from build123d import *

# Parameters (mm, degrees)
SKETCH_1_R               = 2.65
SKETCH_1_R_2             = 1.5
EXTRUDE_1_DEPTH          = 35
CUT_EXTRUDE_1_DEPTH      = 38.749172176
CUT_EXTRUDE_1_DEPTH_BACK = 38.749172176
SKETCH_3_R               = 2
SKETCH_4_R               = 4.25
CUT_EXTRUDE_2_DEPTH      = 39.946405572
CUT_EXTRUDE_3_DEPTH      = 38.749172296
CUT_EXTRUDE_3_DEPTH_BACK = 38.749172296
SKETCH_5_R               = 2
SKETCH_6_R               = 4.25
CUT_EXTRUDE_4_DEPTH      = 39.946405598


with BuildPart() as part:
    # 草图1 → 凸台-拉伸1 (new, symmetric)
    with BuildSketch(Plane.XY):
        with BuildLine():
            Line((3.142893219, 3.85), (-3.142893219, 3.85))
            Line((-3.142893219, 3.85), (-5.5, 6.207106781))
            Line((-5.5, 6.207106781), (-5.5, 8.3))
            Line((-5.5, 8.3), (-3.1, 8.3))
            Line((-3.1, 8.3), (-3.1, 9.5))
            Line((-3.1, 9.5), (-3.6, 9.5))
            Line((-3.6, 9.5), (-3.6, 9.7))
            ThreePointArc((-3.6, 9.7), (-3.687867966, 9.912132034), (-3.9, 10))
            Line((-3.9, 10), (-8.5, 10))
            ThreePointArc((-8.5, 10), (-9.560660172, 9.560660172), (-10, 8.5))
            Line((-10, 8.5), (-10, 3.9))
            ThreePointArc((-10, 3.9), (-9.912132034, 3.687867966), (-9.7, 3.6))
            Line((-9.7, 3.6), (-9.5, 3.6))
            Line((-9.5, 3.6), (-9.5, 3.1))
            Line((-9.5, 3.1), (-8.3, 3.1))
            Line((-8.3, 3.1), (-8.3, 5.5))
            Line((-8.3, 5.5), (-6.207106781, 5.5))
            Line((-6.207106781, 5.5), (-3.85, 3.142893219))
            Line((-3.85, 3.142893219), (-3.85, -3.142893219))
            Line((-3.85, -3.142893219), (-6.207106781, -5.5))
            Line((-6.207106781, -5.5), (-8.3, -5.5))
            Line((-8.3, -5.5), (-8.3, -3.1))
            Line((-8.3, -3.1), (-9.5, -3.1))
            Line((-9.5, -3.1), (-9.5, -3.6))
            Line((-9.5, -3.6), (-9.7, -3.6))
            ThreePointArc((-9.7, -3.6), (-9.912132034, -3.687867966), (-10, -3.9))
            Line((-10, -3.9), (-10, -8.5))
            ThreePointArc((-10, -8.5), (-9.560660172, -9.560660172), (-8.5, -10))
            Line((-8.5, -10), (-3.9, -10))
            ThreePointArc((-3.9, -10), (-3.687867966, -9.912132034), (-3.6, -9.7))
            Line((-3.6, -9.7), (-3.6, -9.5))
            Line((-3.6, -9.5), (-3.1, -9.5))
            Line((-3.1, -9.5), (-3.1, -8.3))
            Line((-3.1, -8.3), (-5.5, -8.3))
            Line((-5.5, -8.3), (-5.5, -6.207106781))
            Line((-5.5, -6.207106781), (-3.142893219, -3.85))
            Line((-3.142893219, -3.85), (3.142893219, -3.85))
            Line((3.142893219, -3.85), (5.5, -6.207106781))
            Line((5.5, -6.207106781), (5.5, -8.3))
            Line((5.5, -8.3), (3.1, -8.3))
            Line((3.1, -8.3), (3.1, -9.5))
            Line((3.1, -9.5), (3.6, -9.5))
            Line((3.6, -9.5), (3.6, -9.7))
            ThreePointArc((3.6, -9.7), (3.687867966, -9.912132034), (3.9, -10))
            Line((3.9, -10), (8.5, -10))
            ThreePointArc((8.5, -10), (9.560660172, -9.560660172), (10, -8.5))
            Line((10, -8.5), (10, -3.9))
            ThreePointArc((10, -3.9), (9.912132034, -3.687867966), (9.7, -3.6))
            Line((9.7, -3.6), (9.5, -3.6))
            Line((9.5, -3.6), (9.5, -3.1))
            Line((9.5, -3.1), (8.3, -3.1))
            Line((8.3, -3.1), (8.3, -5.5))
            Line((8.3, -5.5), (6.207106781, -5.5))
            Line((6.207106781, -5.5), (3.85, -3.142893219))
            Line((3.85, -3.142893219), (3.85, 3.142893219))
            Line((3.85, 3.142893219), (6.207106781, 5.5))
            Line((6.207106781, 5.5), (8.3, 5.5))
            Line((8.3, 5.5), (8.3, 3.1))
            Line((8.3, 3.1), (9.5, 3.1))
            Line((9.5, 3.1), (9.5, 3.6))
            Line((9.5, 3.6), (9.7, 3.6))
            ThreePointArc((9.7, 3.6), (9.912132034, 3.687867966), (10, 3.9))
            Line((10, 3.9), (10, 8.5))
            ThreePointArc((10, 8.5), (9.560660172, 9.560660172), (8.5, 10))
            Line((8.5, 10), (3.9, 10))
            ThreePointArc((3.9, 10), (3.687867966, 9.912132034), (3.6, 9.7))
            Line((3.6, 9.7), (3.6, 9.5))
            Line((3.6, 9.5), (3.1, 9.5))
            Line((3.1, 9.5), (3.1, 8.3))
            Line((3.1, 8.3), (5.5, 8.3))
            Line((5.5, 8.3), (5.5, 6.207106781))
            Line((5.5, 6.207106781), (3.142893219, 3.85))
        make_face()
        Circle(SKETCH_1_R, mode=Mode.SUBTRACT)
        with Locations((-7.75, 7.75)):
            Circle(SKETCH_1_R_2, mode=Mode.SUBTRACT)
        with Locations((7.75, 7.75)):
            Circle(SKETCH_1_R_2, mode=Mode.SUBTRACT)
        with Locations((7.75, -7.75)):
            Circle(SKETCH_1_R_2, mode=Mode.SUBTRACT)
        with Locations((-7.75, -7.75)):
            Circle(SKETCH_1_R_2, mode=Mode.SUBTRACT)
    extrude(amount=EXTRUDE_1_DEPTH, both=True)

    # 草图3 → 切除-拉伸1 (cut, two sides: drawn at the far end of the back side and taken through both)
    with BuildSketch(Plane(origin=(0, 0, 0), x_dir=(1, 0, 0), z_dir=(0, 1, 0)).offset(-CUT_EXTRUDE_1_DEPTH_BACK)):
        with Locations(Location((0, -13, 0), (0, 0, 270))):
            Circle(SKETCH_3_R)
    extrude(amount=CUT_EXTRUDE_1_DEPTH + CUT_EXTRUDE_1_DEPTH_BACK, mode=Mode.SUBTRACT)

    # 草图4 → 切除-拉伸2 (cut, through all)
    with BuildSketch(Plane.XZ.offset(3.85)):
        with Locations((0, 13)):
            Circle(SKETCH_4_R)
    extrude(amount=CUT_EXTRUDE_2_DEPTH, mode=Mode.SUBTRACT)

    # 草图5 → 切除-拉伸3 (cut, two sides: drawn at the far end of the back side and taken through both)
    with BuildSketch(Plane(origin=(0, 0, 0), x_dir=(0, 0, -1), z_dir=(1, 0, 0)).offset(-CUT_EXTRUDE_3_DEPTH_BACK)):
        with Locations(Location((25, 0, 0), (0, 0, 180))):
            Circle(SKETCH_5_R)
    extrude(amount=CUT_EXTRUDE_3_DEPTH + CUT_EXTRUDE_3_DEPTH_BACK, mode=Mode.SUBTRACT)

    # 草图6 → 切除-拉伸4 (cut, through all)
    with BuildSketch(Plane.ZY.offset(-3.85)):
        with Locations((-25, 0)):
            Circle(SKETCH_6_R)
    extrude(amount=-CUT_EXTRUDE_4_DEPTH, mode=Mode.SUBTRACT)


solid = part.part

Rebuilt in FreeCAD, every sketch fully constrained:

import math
import FreeCAD as App
import Part
import Sketcher
from FreeCAD import Vector
Q = App.Units.Quantity

doc = App.newDocument("Part")
body = doc.addObject("PartDesign::Body", "Body")

sketch1 = doc.addObject("Sketcher::SketchObject", "Sketch")
body.addObject(sketch1)
sketch1.AttachmentSupport = (doc.XY_Plane, [""])
sketch1.MapMode = "FlatFace"
sketch1.addGeometry(Part.LineSegment(Vector(3.14, 3.85, 0), Vector(-3.14, 3.85, 0)), False)
sketch1.addGeometry(Part.LineSegment(Vector(-3.14, 3.85, 0), Vector(-5.5, 6.21, 0)), False)
sketch1.addGeometry(Part.LineSegment(Vector(-5.5, 6.21, 0), Vector(-5.5, 8.3, 0)), False)
sketch1.addGeometry(Part.LineSegment(Vector(-5.5, 8.3, 0), Vector(-3.1, 8.3, 0)), False)
sketch1.addGeometry(Part.LineSegment(Vector(-3.1, 8.3, 0), Vector(-3.1, 9.5, 0)), False)
sketch1.addGeometry(Part.LineSegment(Vector(-3.1, 9.5, 0), Vector(-3.6, 9.5, 0)), False)
sketch1.addGeometry(Part.LineSegment(Vector(-3.6, 9.5, 0), Vector(-3.6, 9.7, 0)), False)
sketch1.addGeometry(Part.ArcOfCircle(Part.Circle(Vector(-3.9, 9.7, 0), Vector(0, 0, 1), 0.3), math.radians(0), math.radians(90)), False)
sketch1.addGeometry(Part.LineSegment(Vector(-3.9, 10, 0), Vector(-8.5, 10, 0)), False)
sketch1.addGeometry(Part.ArcOfCircle(Part.Circle(Vector(-8.5, 8.5, 0), Vector(0, 0, 1), 1.5), math.radians(90), math.radians(180)), False)
sketch1.addGeometry(Part.LineSegment(Vector(-10, 8.5, 0), Vector(-10, 3.9, 0)), False)
sketch1.addGeometry(Part.ArcOfCircle(Part.Circle(Vector(-9.7, 3.9, 0), Vector(0, 0, 1), 0.3), math.radians(-180), math.radians(-90)), False)
sketch1.addGeometry(Part.LineSegment(Vector(-9.7, 3.6, 0), Vector(-9.5, 3.6, 0)), False)
sketch1.addGeometry(Part.LineSegment(Vector(-9.5, 3.6, 0), Vector(-9.5, 3.1, 0)), False)
sketch1.addGeometry(Part.LineSegment(Vector(-9.5, 3.1, 0), Vector(-8.3, 3.1, 0)), False)
sketch1.addGeometry(Part.LineSegment(Vector(-8.3, 3.1, 0), Vector(-8.3, 5.5, 0)), False)
sketch1.addGeometry(Part.LineSegment(Vector(-8.3, 5.5, 0), Vector(-6.21, 5.5, 0)), False)
sketch1.addGeometry(Part.LineSegment(Vector(-6.21, 5.5, 0), Vector(-3.85, 3.14, 0)), False)
sketch1.addGeometry(Part.LineSegment(Vector(-3.85, 3.14, 0), Vector(-3.85, -3.14, 0)), False)
sketch1.addGeometry(Part.LineSegment(Vector(-3.85, -3.14, 0), Vector(-6.21, -5.5, 0)), False)
sketch1.addGeometry(Part.LineSegment(Vector(-6.21, -5.5, 0), Vector(-8.3, -5.5, 0)), False)
sketch1.addGeometry(Part.LineSegment(Vector(-8.3, -5.5, 0), Vector(-8.3, -3.1, 0)), False)
sketch1.addGeometry(Part.LineSegment(Vector(-8.3, -3.1, 0), Vector(-9.5, -3.1, 0)), False)
sketch1.addGeometry(Part.LineSegment(Vector(-9.5, -3.1, 0), Vector(-9.5, -3.6, 0)), False)
sketch1.addGeometry(Part.LineSegment(Vector(-9.5, -3.6, 0), Vector(-9.7, -3.6, 0)), False)
sketch1.addGeometry(Part.ArcOfCircle(Part.Circle(Vector(-9.7, -3.9, 0), Vector(0, 0, 1), 0.3), math.radians(90), math.radians(180)), False)
sketch1.addGeometry(Part.LineSegment(Vector(-10, -3.9, 0), Vector(-10, -8.5, 0)), False)
sketch1.addGeometry(Part.ArcOfCircle(Part.Circle(Vector(-8.5, -8.5, 0), Vector(0, 0, 1), 1.5), math.radians(180), math.radians(270)), False)
sketch1.addGeometry(Part.LineSegment(Vector(-8.5, -10, 0), Vector(-3.9, -10, 0)), False)
sketch1.addGeometry(Part.ArcOfCircle(Part.Circle(Vector(-3.9, -9.7, 0), Vector(0, 0, 1), 0.3), math.radians(-90), math.radians(0)), False)
sketch1.addGeometry(Part.LineSegment(Vector(-3.6, -9.7, 0), Vector(-3.6, -9.5, 0)), False)
sketch1.addGeometry(Part.LineSegment(Vector(-3.6, -9.5, 0), Vector(-3.1, -9.5, 0)), False)
sketch1.addGeometry(Part.LineSegment(Vector(-3.1, -9.5, 0), Vector(-3.1, -8.3, 0)), False)
sketch1.addGeometry(Part.LineSegment(Vector(-3.1, -8.3, 0), Vector(-5.5, -8.3, 0)), False)
sketch1.addGeometry(Part.LineSegment(Vector(-5.5, -8.3, 0), Vector(-5.5, -6.21, 0)), False)
sketch1.addGeometry(Part.LineSegment(Vector(-5.5, -6.21, 0), Vector(-3.14, -3.85, 0)), False)
sketch1.addGeometry(Part.LineSegment(Vector(-3.14, -3.85, 0), Vector(3.14, -3.85, 0)), False)
sketch1.addGeometry(Part.LineSegment(Vector(3.14, -3.85, 0), Vector(5.5, -6.21, 0)), False)
sketch1.addGeometry(Part.LineSegment(Vector(5.5, -6.21, 0), Vector(5.5, -8.3, 0)), False)
sketch1.addGeometry(Part.LineSegment(Vector(5.5, -8.3, 0), Vector(3.1, -8.3, 0)), False)
sketch1.addGeometry(Part.LineSegment(Vector(3.1, -8.3, 0), Vector(3.1, -9.5, 0)), False)
sketch1.addGeometry(Part.LineSegment(Vector(3.1, -9.5, 0), Vector(3.6, -9.5, 0)), False)
sketch1.addGeometry(Part.LineSegment(Vector(3.6, -9.5, 0), Vector(3.6, -9.7, 0)), False)
sketch1.addGeometry(Part.ArcOfCircle(Part.Circle(Vector(3.9, -9.7, 0), Vector(0, 0, 1), 0.3), math.radians(-180), math.radians(-90)), False)
sketch1.addGeometry(Part.LineSegment(Vector(3.9, -10, 0), Vector(8.5, -10, 0)), False)
sketch1.addGeometry(Part.ArcOfCircle(Part.Circle(Vector(8.5, -8.5, 0), Vector(0, 0, 1), 1.5), math.radians(-90), math.radians(0)), False)
sketch1.addGeometry(Part.LineSegment(Vector(10, -8.5, 0), Vector(10, -3.9, 0)), False)
sketch1.addGeometry(Part.ArcOfCircle(Part.Circle(Vector(9.7, -3.9, 0), Vector(0, 0, 1), 0.3), math.radians(0), math.radians(90)), False)
sketch1.addGeometry(Part.LineSegment(Vector(9.7, -3.6, 0), Vector(9.5, -3.6, 0)), False)
sketch1.addGeometry(Part.LineSegment(Vector(9.5, -3.6, 0), Vector(9.5, -3.1, 0)), False)
sketch1.addGeometry(Part.LineSegment(Vector(9.5, -3.1, 0), Vector(8.3, -3.1, 0)), False)
sketch1.addGeometry(Part.LineSegment(Vector(8.3, -3.1, 0), Vector(8.3, -5.5, 0)), False)
sketch1.addGeometry(Part.LineSegment(Vector(8.3, -5.5, 0), Vector(6.21, -5.5, 0)), False)
sketch1.addGeometry(Part.LineSegment(Vector(6.21, -5.5, 0), Vector(3.85, -3.14, 0)), False)
sketch1.addGeometry(Part.LineSegment(Vector(3.85, -3.14, 0), Vector(3.85, 3.14, 0)), False)
sketch1.addGeometry(Part.LineSegment(Vector(3.85, 3.14, 0), Vector(6.21, 5.5, 0)), False)
sketch1.addGeometry(Part.LineSegment(Vector(6.21, 5.5, 0), Vector(8.3, 5.5, 0)), False)
sketch1.addGeometry(Part.LineSegment(Vector(8.3, 5.5, 0), Vector(8.3, 3.1, 0)), False)
sketch1.addGeometry(Part.LineSegment(Vector(8.3, 3.1, 0), Vector(9.5, 3.1, 0)), False)
sketch1.addGeometry(Part.LineSegment(Vector(9.5, 3.1, 0), Vector(9.5, 3.6, 0)), False)
sketch1.addGeometry(Part.LineSegment(Vector(9.5, 3.6, 0), Vector(9.7, 3.6, 0)), False)
sketch1.addGeometry(Part.ArcOfCircle(Part.Circle(Vector(9.7, 3.9, 0), Vector(0, 0, 1), 0.3), math.radians(-90), math.radians(0)), False)
sketch1.addGeometry(Part.LineSegment(Vector(10, 3.9, 0), Vector(10, 8.5, 0)), False)
sketch1.addGeometry(Part.ArcOfCircle(Part.Circle(Vector(8.5, 8.5, 0), Vector(0, 0, 1), 1.5), math.radians(0), math.radians(90)), False)
sketch1.addGeometry(Part.LineSegment(Vector(8.5, 10, 0), Vector(3.9, 10, 0)), False)
sketch1.addGeometry(Part.ArcOfCircle(Part.Circle(Vector(3.9, 9.7, 0), Vector(0, 0, 1), 0.3), math.radians(90), math.radians(180)), False)
sketch1.addGeometry(Part.LineSegment(Vector(3.6, 9.7, 0), Vector(3.6, 9.5, 0)), False)
sketch1.addGeometry(Part.LineSegment(Vector(3.6, 9.5, 0), Vector(3.1, 9.5, 0)), False)
sketch1.addGeometry(Part.LineSegment(Vector(3.1, 9.5, 0), Vector(3.1, 8.3, 0)), False)
sketch1.addGeometry(Part.LineSegment(Vector(3.1, 8.3, 0), Vector(5.5, 8.3, 0)), False)
sketch1.addGeometry(Part.LineSegment(Vector(5.5, 8.3, 0), Vector(5.5, 6.21, 0)), False)
sketch1.addGeometry(Part.LineSegment(Vector(5.5, 6.21, 0), Vector(3.14, 3.85, 0)), False)
sketch1.addGeometry(Part.Circle(Vector(-7.75, -7.75, 0), Vector(0, 0, 1), 1.5), False)
sketch1.addGeometry(Part.Circle(Vector(7.75, -7.75, 0), Vector(0, 0, 1), 1.5), False)
sketch1.addGeometry(Part.Circle(Vector(-7.75, 7.75, 0), Vector(0, 0, 1), 1.5), False)
sketch1.addGeometry(Part.Circle(Vector(0, 0, 0), Vector(0, 0, 1), 2.65), False)
sketch1.addGeometry(Part.Circle(Vector(7.75, 7.75, 0), Vector(0, 0, 1), 1.5), False)
sketch1.addConstraint(Sketcher.Constraint("Coincident", 0, 2, 1, 1))
sketch1.addConstraint(Sketcher.Constraint("Coincident", 1, 2, 2, 1))
sketch1.addConstraint(Sketcher.Constraint("Coincident", 2, 2, 3, 1))
sketch1.addConstraint(Sketcher.Constraint("Coincident", 3, 2, 4, 1))
sketch1.addConstraint(Sketcher.Constraint("Coincident", 4, 2, 5, 1))
sketch1.addConstraint(Sketcher.Constraint("Coincident", 5, 2, 6, 1))
sketch1.addConstraint(Sketcher.Constraint("Tangent", 6, 2, 7, 1))
sketch1.addConstraint(Sketcher.Constraint("Tangent", 7, 2, 8, 1))
sketch1.addConstraint(Sketcher.Constraint("Tangent", 8, 2, 9, 1))
sketch1.addConstraint(Sketcher.Constraint("Tangent", 9, 2, 10, 1))
sketch1.addConstraint(Sketcher.Constraint("Tangent", 10, 2, 11, 1))
sketch1.addConstraint(Sketcher.Constraint("Tangent", 11, 2, 12, 1))
sketch1.addConstraint(Sketcher.Constraint("Coincident", 12, 2, 13, 1))
sketch1.addConstraint(Sketcher.Constraint("Coincident", 13, 2, 14, 1))
sketch1.addConstraint(Sketcher.Constraint("Coincident", 14, 2, 15, 1))
sketch1.addConstraint(Sketcher.Constraint("Coincident", 15, 2, 16, 1))
sketch1.addConstraint(Sketcher.Constraint("Coincident", 16, 2, 17, 1))
sketch1.addConstraint(Sketcher.Constraint("Coincident", 17, 2, 18, 1))
sketch1.addConstraint(Sketcher.Constraint("Coincident", 18, 2, 19, 1))
sketch1.addConstraint(Sketcher.Constraint("Coincident", 19, 2, 20, 1))
sketch1.addConstraint(Sketcher.Constraint("Coincident", 20, 2, 21, 1))
sketch1.addConstraint(Sketcher.Constraint("Coincident", 21, 2, 22, 1))
sketch1.addConstraint(Sketcher.Constraint("Coincident", 22, 2, 23, 1))
sketch1.addConstraint(Sketcher.Constraint("Coincident", 23, 2, 24, 1))
sketch1.addConstraint(Sketcher.Constraint("Tangent", 24, 2, 25, 1))
sketch1.addConstraint(Sketcher.Constraint("Tangent", 25, 2, 26, 1))
sketch1.addConstraint(Sketcher.Constraint("Tangent", 26, 2, 27, 1))
sketch1.addConstraint(Sketcher.Constraint("Tangent", 27, 2, 28, 1))
sketch1.addConstraint(Sketcher.Constraint("Tangent", 28, 2, 29, 1))
sketch1.addConstraint(Sketcher.Constraint("Tangent", 29, 2, 30, 1))
sketch1.addConstraint(Sketcher.Constraint("Coincident", 30, 2, 31, 1))
sketch1.addConstraint(Sketcher.Constraint("Coincident", 31, 2, 32, 1))
sketch1.addConstraint(Sketcher.Constraint("Coincident", 32, 2, 33, 1))
sketch1.addConstraint(Sketcher.Constraint("Coincident", 33, 2, 34, 1))
sketch1.addConstraint(Sketcher.Constraint("Coincident", 34, 2, 35, 1))
sketch1.addConstraint(Sketcher.Constraint("Coincident", 35, 2, 36, 1))
sketch1.addConstraint(Sketcher.Constraint("Coincident", 36, 2, 37, 1))
sketch1.addConstraint(Sketcher.Constraint("Coincident", 37, 2, 38, 1))
sketch1.addConstraint(Sketcher.Constraint("Coincident", 38, 2, 39, 1))
sketch1.addConstraint(Sketcher.Constraint("Coincident", 39, 2, 40, 1))
sketch1.addConstraint(Sketcher.Constraint("Coincident", 40, 2, 41, 1))
sketch1.addConstraint(Sketcher.Constraint("Coincident", 41, 2, 42, 1))
sketch1.addConstraint(Sketcher.Constraint("Tangent", 42, 2, 43, 1))
sketch1.addConstraint(Sketcher.Constraint("Tangent", 43, 2, 44, 1))
sketch1.addConstraint(Sketcher.Constraint("Tangent", 44, 2, 45, 1))
sketch1.addConstraint(Sketcher.Constraint("Tangent", 45, 2, 46, 1))
sketch1.addConstraint(Sketcher.Constraint("Tangent", 46, 2, 47, 1))
sketch1.addConstraint(Sketcher.Constraint("Tangent", 47, 2, 48, 1))
sketch1.addConstraint(Sketcher.Constraint("Coincident", 48, 2, 49, 1))
sketch1.addConstraint(Sketcher.Constraint("Coincident", 49, 2, 50, 1))
sketch1.addConstraint(Sketcher.Constraint("Coincident", 50, 2, 51, 1))
sketch1.addConstraint(Sketcher.Constraint("Coincident", 51, 2, 52, 1))
sketch1.addConstraint(Sketcher.Constraint("Coincident", 52, 2, 53, 1))
sketch1.addConstraint(Sketcher.Constraint("Coincident", 53, 2, 54, 1))
sketch1.addConstraint(Sketcher.Constraint("Coincident", 54, 2, 55, 1))
sketch1.addConstraint(Sketcher.Constraint("Coincident", 55, 2, 56, 1))
sketch1.addConstraint(Sketcher.Constraint("Coincident", 56, 2, 57, 1))
sketch1.addConstraint(Sketcher.Constraint("Coincident", 57, 2, 58, 1))
sketch1.addConstraint(Sketcher.Constraint("Coincident", 58, 2, 59, 1))
sketch1.addConstraint(Sketcher.Constraint("Coincident", 59, 2, 60, 1))
sketch1.addConstraint(Sketcher.Constraint("Tangent", 60, 2, 61, 1))
sketch1.addConstraint(Sketcher.Constraint("Tangent", 61, 2, 62, 1))
sketch1.addConstraint(Sketcher.Constraint("Tangent", 62, 2, 63, 1))
sketch1.addConstraint(Sketcher.Constraint("Tangent", 63, 2, 64, 1))
sketch1.addConstraint(Sketcher.Constraint("Tangent", 64, 2, 65, 1))
sketch1.addConstraint(Sketcher.Constraint("Tangent", 65, 2, 66, 1))
sketch1.addConstraint(Sketcher.Constraint("Coincident", 66, 2, 67, 1))
sketch1.addConstraint(Sketcher.Constraint("Coincident", 67, 2, 68, 1))
sketch1.addConstraint(Sketcher.Constraint("Coincident", 68, 2, 69, 1))
sketch1.addConstraint(Sketcher.Constraint("Coincident", 69, 2, 70, 1))
sketch1.addConstraint(Sketcher.Constraint("Coincident", 70, 2, 71, 1))
sketch1.addConstraint(Sketcher.Constraint("Coincident", 71, 2, 0, 1))
sketch1.addConstraint(Sketcher.Constraint("Horizontal", 0))
sketch1.addConstraint(Sketcher.Constraint("Vertical", 2))
sketch1.addConstraint(Sketcher.Constraint("Horizontal", 3))
sketch1.addConstraint(Sketcher.Constraint("Vertical", 4))
sketch1.addConstraint(Sketcher.Constraint("Horizontal", 5))
sketch1.addConstraint(Sketcher.Constraint("Vertical", 6))
sketch1.addConstraint(Sketcher.Constraint("Horizontal", 8))
sketch1.addConstraint(Sketcher.Constraint("Vertical", 10))
sketch1.addConstraint(Sketcher.Constraint("Horizontal", 12))
sketch1.addConstraint(Sketcher.Constraint("Vertical", 13))
sketch1.addConstraint(Sketcher.Constraint("Horizontal", 14))
sketch1.addConstraint(Sketcher.Constraint("Vertical", 15))
sketch1.addConstraint(Sketcher.Constraint("Horizontal", 16))
sketch1.addConstraint(Sketcher.Constraint("Vertical", 18))
sketch1.addConstraint(Sketcher.Constraint("Horizontal", 20))
sketch1.addConstraint(Sketcher.Constraint("Vertical", 21))
sketch1.addConstraint(Sketcher.Constraint("Horizontal", 22))
sketch1.addConstraint(Sketcher.Constraint("Vertical", 23))
sketch1.addConstraint(Sketcher.Constraint("Horizontal", 24))
sketch1.addConstraint(Sketcher.Constraint("Vertical", 26))
sketch1.addConstraint(Sketcher.Constraint("Horizontal", 28))
sketch1.addConstraint(Sketcher.Constraint("Vertical", 30))
sketch1.addConstraint(Sketcher.Constraint("Horizontal", 31))
sketch1.addConstraint(Sketcher.Constraint("Vertical", 32))
sketch1.addConstraint(Sketcher.Constraint("Horizontal", 33))
sketch1.addConstraint(Sketcher.Constraint("Vertical", 34))
sketch1.addConstraint(Sketcher.Constraint("Horizontal", 36))
sketch1.addConstraint(Sketcher.Constraint("Vertical", 38))
sketch1.addConstraint(Sketcher.Constraint("Horizontal", 39))
sketch1.addConstraint(Sketcher.Constraint("Vertical", 40))
sketch1.addConstraint(Sketcher.Constraint("Horizontal", 41))
sketch1.addConstraint(Sketcher.Constraint("Vertical", 42))
sketch1.addConstraint(Sketcher.Constraint("Horizontal", 44))
sketch1.addConstraint(Sketcher.Constraint("Vertical", 46))
sketch1.addConstraint(Sketcher.Constraint("Horizontal", 48))
sketch1.addConstraint(Sketcher.Constraint("Vertical", 49))
sketch1.addConstraint(Sketcher.Constraint("Horizontal", 50))
sketch1.addConstraint(Sketcher.Constraint("Vertical", 51))
sketch1.addConstraint(Sketcher.Constraint("Horizontal", 52))
sketch1.addConstraint(Sketcher.Constraint("Vertical", 54))
sketch1.addConstraint(Sketcher.Constraint("Horizontal", 56))
sketch1.addConstraint(Sketcher.Constraint("Vertical", 57))
sketch1.addConstraint(Sketcher.Constraint("Horizontal", 58))
sketch1.addConstraint(Sketcher.Constraint("Vertical", 59))
sketch1.addConstraint(Sketcher.Constraint("Horizontal", 60))
sketch1.addConstraint(Sketcher.Constraint("Vertical", 62))
sketch1.addConstraint(Sketcher.Constraint("Horizontal", 64))
sketch1.addConstraint(Sketcher.Constraint("Vertical", 66))
sketch1.addConstraint(Sketcher.Constraint("Horizontal", 67))
sketch1.addConstraint(Sketcher.Constraint("Vertical", 68))
sketch1.addConstraint(Sketcher.Constraint("Horizontal", 69))
sketch1.addConstraint(Sketcher.Constraint("Vertical", 70))
sketch1.addConstraint(Sketcher.Constraint("Coincident", 75, 3, -1, 1))
sketch1.addConstraint(Sketcher.Constraint("Equal", 7, 11))
sketch1.addConstraint(Sketcher.Constraint("Equal", 11, 25))
sketch1.addConstraint(Sketcher.Constraint("Equal", 9, 27))
sketch1.addConstraint(Sketcher.Constraint("Equal", 25, 29))
sketch1.addConstraint(Sketcher.Constraint("Equal", 29, 43))
sketch1.addConstraint(Sketcher.Constraint("Equal", 27, 45))
sketch1.addConstraint(Sketcher.Constraint("Equal", 43, 47))
sketch1.addConstraint(Sketcher.Constraint("Equal", 47, 61))
sketch1.addConstraint(Sketcher.Constraint("Equal", 45, 63))
sketch1.addConstraint(Sketcher.Constraint("Equal", 61, 65))
sketch1.addConstraint(Sketcher.Constraint("Equal", 63, 72))
sketch1.addConstraint(Sketcher.Constraint("Equal", 72, 73))
sketch1.addConstraint(Sketcher.Constraint("Equal", 73, 74))
sketch1.addConstraint(Sketcher.Constraint("Equal", 74, 76))
sketch1.addConstraint(Sketcher.Constraint("Symmetric", 7, 3, 43, 3, -1, 1))
sketch1.addConstraint(Sketcher.Constraint("Symmetric", 11, 3, 47, 3, -1, 1))
sketch1.addConstraint(Sketcher.Constraint("Symmetric", 25, 3, 61, 3, -1, 1))
sketch1.addConstraint(Sketcher.Constraint("Symmetric", 29, 3, 65, 3, -1, 1))
sketch1.addConstraint(Sketcher.Constraint("Symmetric", 73, 3, 74, 3, -1, 1))
sketch1.addConstraint(Sketcher.Constraint("Symmetric", 72, 3, 76, 3, -1, 1))
sketch1.addConstraint(Sketcher.Constraint("Symmetric", 0, 2, 36, 2, -1, 1))
sketch1.addConstraint(Sketcher.Constraint("Symmetric", 1, 2, 37, 2, -1, 1))
sketch1.addConstraint(Sketcher.Constraint("Symmetric", 3, 2, 39, 2, -1, 1))
sketch1.addConstraint(Sketcher.Constraint("Symmetric", 13, 2, 49, 2, -1, 1))
sketch1.addConstraint(Sketcher.Constraint("Symmetric", 15, 2, 51, 2, -1, 1))
sketch1.addConstraint(Sketcher.Constraint("Symmetric", 17, 2, 53, 2, -1, 1))
sketch1.addConstraint(Sketcher.Constraint("Symmetric", 19, 2, 55, 2, -1, 1))
sketch1.addConstraint(Sketcher.Constraint("Symmetric", 21, 2, 57, 2, -1, 1))
sketch1.addConstraint(Sketcher.Constraint("Symmetric", 31, 2, 67, 2, -1, 1))
sketch1.addConstraint(Sketcher.Constraint("Symmetric", 33, 2, 69, 2, -1, 1))
sketch1.addConstraint(Sketcher.Constraint("Symmetric", 29, 3, 43, 3, -2))
sketch1.addConstraint(Sketcher.Constraint("Symmetric", 25, 3, 47, 3, -2))
sketch1.addConstraint(Sketcher.Constraint("Symmetric", 72, 3, 73, 3, -2))
sketch1.addConstraint(Sketcher.Constraint("Symmetric", 34, 2, 37, 2, -2))
sketch1.addConstraint(Sketcher.Constraint("Symmetric", 32, 2, 39, 2, -2))
sketch1.addConstraint(Sketcher.Constraint("Symmetric", 22, 2, 49, 2, -2))
sketch1.addConstraint(Sketcher.Constraint("Symmetric", 20, 2, 51, 2, -2))
sketch1.addConstraint(Sketcher.Constraint("Parallel", 1, 17))
sketch1.addConstraint(Sketcher.Constraint("Perpendicular", 17, 19))
sketch1.addConstraint(Sketcher.Constraint("Parallel", 19, 35))
sketch1.addConstraint(Sketcher.Constraint("Parallel", 37, 53))
sketch1.addConstraint(Sketcher.Constraint("Perpendicular", 53, 55))
sketch1.addConstraint(Sketcher.Constraint("Parallel", 55, 71))
sketch1.addConstraint(Sketcher.Constraint("Horizontal", 31, 2, 40, 2))
sketch1.addConstraint(Sketcher.Constraint("Horizontal", 18, 2, 53, 2))
sketch1.addConstraint(Sketcher.Constraint("Horizontal", 5, 2, 66, 2))
sketch1.addConstraint(Sketcher.Constraint("Horizontal", 1, 2, 70, 2))
sketch1.addConstraint(Sketcher.Constraint("Vertical", 16, 2, 19, 2))
sketch1.addConstraint(Sketcher.Constraint("Vertical", 49, 2, 58, 2))
sketch1.addConstraint(Sketcher.Constraint("Equal", 56, 2))
sketch1.addConstraint(Sketcher.Constraint("Equal", 58, 4))
sketch1.addConstraint(Sketcher.Constraint("Equal", 60, 6))
sketch1.addConstraint(Sketcher.Constraint("Equal", 64, 10))
sketch1.addConstraint(Sketcher.Constraint("Equal", 67, 13))
sketch1.addConstraint(Sketcher.Constraint("Equal", 69, 15))
sketch1.addConstraint(Sketcher.Constraint("Equal", 36, 18))
sketch1.addConstraint(Sketcher.Constraint("Equal", 1, 17))
sketch1.addConstraint(Sketcher.Constraint("Diameter", 72, Q("3 mm")))
sketch1.addConstraint(Sketcher.Constraint("Diameter", 75, Q("5.3 mm")))
sketch1.addConstraint(Sketcher.Constraint("Radius", 7, Q("0.3 mm")))
sketch1.addConstraint(Sketcher.Constraint("DistanceX", 3, 1, 3, 2, Q("2.4 mm")))
sketch1.addConstraint(Sketcher.Constraint("DistanceX", 5, 2, 5, 1, Q("0.5 mm")))
sketch1.addConstraint(Sketcher.Constraint("DistanceX", 8, 2, 8, 1, Q("4.6 mm")))
sketch1.addConstraint(Sketcher.Constraint("DistanceX", 12, 1, 12, 2, Q("0.2 mm")))
sketch1.addConstraint(Sketcher.Constraint("DistanceX", 14, 1, 14, 2, Q("1.2 mm")))
sketch1.addConstraint(Sketcher.Constraint("DistanceY", -1, 1, 7, 2, Q("10 mm")))
sketch1.addConstraint(Sketcher.Constraint("DistanceX", 72, 3, -1, 1, Q("7.75 mm")))
sketch1.addConstraint(Sketcher.Constraint("DistanceY", 72, 3, -1, 1, Q("7.75 mm")))
sketch1.addConstraint(Sketcher.Constraint("DistanceY", -1, 1, 0, 2, Q("3.85 mm")))
sketch1.addConstraint(Sketcher.Constraint("DistanceX", 0, 2, 0, 1, Q("6.285786 mm")))
pad1 = doc.addObject("PartDesign::Pad", "Pad")
body.addObject(pad1)
pad1.Profile = sketch1
pad1.Length = 70
pad1.Midplane = True

sketch2 = doc.addObject("Sketcher::SketchObject", "Sketch001")
body.addObject(sketch2)
sketch2.AttachmentSupport = (doc.XZ_Plane, [""])
sketch2.MapMode = "FlatFace"
sketch2.addGeometry(Part.Circle(Vector(0, 13, 0), Vector(0, 0, 1), 2), False)
sketch2.addConstraint(Sketcher.Constraint("PointOnObject", 0, 3, -2))
sketch2.addConstraint(Sketcher.Constraint("Diameter", 0, Q("4 mm")))
sketch2.addConstraint(Sketcher.Constraint("DistanceY", -1, 1, 0, 3, Q("13 mm")))
pocket1 = doc.addObject("PartDesign::Pocket", "Pocket")
body.addObject(pocket1)
pocket1.Profile = sketch2
pocket1.Type = "ThroughAll"
pocket1.Midplane = True

sketch3 = doc.addObject("Sketcher::SketchObject", "Sketch002")
body.addObject(sketch3)
sketch3.AttachmentSupport = (doc.XZ_Plane, [""])
sketch3.MapMode = "FlatFace"
sketch3.AttachmentOffset = App.Placement(Vector(0, 0, 3.85), App.Rotation())
sketch3.addGeometry(Part.Circle(Vector(0, 13, 0), Vector(0, 0, 1), 4.2), False)
sketch3.addConstraint(Sketcher.Constraint("PointOnObject", 0, 3, -2))
sketch3.addConstraint(Sketcher.Constraint("Diameter", 0, Q("8.5 mm")))
sketch3.addConstraint(Sketcher.Constraint("DistanceY", -1, 1, 0, 3, Q("13 mm")))
pocket2 = doc.addObject("PartDesign::Pocket", "Pocket001")
body.addObject(pocket2)
pocket2.Profile = sketch3
pocket2.Type = "ThroughAll"
pocket2.Reversed = True

sketch4 = doc.addObject("Sketcher::SketchObject", "Sketch003")
body.addObject(sketch4)
sketch4.AttachmentSupport = (doc.YZ_Plane, [""])
sketch4.MapMode = "FlatFace"
sketch4.addGeometry(Part.Circle(Vector(0, -25, 0), Vector(0, 0, 1), 2), False)
sketch4.addConstraint(Sketcher.Constraint("PointOnObject", 0, 3, -2))
sketch4.addConstraint(Sketcher.Constraint("Diameter", 0, Q("4 mm")))
sketch4.addConstraint(Sketcher.Constraint("DistanceY", 0, 3, -1, 1, Q("25 mm")))
pocket3 = doc.addObject("PartDesign::Pocket", "Pocket002")
body.addObject(pocket3)
pocket3.Profile = sketch4
pocket3.Type = "ThroughAll"
pocket3.Midplane = True

sketch5 = doc.addObject("Sketcher::SketchObject", "Sketch004")
body.addObject(sketch5)
sketch5.AttachmentSupport = (doc.YZ_Plane, [""])
sketch5.MapMode = "FlatFace"
sketch5.AttachmentOffset = App.Placement(Vector(0, 0, 3.85), App.Rotation())
sketch5.addGeometry(Part.Circle(Vector(0, -25, 0), Vector(0, 0, 1), 4.2), False)
sketch5.addConstraint(Sketcher.Constraint("PointOnObject", 0, 3, -2))
sketch5.addConstraint(Sketcher.Constraint("Diameter", 0, Q("8.5 mm")))
sketch5.addConstraint(Sketcher.Constraint("DistanceY", 0, 3, -1, 1, Q("25 mm")))
pocket4 = doc.addObject("PartDesign::Pocket", "Pocket003")
body.addObject(pocket4)
pocket4.Profile = sketch5
pocket4.Type = "ThroughAll"
pocket4.Reversed = True

doc.recompute()
